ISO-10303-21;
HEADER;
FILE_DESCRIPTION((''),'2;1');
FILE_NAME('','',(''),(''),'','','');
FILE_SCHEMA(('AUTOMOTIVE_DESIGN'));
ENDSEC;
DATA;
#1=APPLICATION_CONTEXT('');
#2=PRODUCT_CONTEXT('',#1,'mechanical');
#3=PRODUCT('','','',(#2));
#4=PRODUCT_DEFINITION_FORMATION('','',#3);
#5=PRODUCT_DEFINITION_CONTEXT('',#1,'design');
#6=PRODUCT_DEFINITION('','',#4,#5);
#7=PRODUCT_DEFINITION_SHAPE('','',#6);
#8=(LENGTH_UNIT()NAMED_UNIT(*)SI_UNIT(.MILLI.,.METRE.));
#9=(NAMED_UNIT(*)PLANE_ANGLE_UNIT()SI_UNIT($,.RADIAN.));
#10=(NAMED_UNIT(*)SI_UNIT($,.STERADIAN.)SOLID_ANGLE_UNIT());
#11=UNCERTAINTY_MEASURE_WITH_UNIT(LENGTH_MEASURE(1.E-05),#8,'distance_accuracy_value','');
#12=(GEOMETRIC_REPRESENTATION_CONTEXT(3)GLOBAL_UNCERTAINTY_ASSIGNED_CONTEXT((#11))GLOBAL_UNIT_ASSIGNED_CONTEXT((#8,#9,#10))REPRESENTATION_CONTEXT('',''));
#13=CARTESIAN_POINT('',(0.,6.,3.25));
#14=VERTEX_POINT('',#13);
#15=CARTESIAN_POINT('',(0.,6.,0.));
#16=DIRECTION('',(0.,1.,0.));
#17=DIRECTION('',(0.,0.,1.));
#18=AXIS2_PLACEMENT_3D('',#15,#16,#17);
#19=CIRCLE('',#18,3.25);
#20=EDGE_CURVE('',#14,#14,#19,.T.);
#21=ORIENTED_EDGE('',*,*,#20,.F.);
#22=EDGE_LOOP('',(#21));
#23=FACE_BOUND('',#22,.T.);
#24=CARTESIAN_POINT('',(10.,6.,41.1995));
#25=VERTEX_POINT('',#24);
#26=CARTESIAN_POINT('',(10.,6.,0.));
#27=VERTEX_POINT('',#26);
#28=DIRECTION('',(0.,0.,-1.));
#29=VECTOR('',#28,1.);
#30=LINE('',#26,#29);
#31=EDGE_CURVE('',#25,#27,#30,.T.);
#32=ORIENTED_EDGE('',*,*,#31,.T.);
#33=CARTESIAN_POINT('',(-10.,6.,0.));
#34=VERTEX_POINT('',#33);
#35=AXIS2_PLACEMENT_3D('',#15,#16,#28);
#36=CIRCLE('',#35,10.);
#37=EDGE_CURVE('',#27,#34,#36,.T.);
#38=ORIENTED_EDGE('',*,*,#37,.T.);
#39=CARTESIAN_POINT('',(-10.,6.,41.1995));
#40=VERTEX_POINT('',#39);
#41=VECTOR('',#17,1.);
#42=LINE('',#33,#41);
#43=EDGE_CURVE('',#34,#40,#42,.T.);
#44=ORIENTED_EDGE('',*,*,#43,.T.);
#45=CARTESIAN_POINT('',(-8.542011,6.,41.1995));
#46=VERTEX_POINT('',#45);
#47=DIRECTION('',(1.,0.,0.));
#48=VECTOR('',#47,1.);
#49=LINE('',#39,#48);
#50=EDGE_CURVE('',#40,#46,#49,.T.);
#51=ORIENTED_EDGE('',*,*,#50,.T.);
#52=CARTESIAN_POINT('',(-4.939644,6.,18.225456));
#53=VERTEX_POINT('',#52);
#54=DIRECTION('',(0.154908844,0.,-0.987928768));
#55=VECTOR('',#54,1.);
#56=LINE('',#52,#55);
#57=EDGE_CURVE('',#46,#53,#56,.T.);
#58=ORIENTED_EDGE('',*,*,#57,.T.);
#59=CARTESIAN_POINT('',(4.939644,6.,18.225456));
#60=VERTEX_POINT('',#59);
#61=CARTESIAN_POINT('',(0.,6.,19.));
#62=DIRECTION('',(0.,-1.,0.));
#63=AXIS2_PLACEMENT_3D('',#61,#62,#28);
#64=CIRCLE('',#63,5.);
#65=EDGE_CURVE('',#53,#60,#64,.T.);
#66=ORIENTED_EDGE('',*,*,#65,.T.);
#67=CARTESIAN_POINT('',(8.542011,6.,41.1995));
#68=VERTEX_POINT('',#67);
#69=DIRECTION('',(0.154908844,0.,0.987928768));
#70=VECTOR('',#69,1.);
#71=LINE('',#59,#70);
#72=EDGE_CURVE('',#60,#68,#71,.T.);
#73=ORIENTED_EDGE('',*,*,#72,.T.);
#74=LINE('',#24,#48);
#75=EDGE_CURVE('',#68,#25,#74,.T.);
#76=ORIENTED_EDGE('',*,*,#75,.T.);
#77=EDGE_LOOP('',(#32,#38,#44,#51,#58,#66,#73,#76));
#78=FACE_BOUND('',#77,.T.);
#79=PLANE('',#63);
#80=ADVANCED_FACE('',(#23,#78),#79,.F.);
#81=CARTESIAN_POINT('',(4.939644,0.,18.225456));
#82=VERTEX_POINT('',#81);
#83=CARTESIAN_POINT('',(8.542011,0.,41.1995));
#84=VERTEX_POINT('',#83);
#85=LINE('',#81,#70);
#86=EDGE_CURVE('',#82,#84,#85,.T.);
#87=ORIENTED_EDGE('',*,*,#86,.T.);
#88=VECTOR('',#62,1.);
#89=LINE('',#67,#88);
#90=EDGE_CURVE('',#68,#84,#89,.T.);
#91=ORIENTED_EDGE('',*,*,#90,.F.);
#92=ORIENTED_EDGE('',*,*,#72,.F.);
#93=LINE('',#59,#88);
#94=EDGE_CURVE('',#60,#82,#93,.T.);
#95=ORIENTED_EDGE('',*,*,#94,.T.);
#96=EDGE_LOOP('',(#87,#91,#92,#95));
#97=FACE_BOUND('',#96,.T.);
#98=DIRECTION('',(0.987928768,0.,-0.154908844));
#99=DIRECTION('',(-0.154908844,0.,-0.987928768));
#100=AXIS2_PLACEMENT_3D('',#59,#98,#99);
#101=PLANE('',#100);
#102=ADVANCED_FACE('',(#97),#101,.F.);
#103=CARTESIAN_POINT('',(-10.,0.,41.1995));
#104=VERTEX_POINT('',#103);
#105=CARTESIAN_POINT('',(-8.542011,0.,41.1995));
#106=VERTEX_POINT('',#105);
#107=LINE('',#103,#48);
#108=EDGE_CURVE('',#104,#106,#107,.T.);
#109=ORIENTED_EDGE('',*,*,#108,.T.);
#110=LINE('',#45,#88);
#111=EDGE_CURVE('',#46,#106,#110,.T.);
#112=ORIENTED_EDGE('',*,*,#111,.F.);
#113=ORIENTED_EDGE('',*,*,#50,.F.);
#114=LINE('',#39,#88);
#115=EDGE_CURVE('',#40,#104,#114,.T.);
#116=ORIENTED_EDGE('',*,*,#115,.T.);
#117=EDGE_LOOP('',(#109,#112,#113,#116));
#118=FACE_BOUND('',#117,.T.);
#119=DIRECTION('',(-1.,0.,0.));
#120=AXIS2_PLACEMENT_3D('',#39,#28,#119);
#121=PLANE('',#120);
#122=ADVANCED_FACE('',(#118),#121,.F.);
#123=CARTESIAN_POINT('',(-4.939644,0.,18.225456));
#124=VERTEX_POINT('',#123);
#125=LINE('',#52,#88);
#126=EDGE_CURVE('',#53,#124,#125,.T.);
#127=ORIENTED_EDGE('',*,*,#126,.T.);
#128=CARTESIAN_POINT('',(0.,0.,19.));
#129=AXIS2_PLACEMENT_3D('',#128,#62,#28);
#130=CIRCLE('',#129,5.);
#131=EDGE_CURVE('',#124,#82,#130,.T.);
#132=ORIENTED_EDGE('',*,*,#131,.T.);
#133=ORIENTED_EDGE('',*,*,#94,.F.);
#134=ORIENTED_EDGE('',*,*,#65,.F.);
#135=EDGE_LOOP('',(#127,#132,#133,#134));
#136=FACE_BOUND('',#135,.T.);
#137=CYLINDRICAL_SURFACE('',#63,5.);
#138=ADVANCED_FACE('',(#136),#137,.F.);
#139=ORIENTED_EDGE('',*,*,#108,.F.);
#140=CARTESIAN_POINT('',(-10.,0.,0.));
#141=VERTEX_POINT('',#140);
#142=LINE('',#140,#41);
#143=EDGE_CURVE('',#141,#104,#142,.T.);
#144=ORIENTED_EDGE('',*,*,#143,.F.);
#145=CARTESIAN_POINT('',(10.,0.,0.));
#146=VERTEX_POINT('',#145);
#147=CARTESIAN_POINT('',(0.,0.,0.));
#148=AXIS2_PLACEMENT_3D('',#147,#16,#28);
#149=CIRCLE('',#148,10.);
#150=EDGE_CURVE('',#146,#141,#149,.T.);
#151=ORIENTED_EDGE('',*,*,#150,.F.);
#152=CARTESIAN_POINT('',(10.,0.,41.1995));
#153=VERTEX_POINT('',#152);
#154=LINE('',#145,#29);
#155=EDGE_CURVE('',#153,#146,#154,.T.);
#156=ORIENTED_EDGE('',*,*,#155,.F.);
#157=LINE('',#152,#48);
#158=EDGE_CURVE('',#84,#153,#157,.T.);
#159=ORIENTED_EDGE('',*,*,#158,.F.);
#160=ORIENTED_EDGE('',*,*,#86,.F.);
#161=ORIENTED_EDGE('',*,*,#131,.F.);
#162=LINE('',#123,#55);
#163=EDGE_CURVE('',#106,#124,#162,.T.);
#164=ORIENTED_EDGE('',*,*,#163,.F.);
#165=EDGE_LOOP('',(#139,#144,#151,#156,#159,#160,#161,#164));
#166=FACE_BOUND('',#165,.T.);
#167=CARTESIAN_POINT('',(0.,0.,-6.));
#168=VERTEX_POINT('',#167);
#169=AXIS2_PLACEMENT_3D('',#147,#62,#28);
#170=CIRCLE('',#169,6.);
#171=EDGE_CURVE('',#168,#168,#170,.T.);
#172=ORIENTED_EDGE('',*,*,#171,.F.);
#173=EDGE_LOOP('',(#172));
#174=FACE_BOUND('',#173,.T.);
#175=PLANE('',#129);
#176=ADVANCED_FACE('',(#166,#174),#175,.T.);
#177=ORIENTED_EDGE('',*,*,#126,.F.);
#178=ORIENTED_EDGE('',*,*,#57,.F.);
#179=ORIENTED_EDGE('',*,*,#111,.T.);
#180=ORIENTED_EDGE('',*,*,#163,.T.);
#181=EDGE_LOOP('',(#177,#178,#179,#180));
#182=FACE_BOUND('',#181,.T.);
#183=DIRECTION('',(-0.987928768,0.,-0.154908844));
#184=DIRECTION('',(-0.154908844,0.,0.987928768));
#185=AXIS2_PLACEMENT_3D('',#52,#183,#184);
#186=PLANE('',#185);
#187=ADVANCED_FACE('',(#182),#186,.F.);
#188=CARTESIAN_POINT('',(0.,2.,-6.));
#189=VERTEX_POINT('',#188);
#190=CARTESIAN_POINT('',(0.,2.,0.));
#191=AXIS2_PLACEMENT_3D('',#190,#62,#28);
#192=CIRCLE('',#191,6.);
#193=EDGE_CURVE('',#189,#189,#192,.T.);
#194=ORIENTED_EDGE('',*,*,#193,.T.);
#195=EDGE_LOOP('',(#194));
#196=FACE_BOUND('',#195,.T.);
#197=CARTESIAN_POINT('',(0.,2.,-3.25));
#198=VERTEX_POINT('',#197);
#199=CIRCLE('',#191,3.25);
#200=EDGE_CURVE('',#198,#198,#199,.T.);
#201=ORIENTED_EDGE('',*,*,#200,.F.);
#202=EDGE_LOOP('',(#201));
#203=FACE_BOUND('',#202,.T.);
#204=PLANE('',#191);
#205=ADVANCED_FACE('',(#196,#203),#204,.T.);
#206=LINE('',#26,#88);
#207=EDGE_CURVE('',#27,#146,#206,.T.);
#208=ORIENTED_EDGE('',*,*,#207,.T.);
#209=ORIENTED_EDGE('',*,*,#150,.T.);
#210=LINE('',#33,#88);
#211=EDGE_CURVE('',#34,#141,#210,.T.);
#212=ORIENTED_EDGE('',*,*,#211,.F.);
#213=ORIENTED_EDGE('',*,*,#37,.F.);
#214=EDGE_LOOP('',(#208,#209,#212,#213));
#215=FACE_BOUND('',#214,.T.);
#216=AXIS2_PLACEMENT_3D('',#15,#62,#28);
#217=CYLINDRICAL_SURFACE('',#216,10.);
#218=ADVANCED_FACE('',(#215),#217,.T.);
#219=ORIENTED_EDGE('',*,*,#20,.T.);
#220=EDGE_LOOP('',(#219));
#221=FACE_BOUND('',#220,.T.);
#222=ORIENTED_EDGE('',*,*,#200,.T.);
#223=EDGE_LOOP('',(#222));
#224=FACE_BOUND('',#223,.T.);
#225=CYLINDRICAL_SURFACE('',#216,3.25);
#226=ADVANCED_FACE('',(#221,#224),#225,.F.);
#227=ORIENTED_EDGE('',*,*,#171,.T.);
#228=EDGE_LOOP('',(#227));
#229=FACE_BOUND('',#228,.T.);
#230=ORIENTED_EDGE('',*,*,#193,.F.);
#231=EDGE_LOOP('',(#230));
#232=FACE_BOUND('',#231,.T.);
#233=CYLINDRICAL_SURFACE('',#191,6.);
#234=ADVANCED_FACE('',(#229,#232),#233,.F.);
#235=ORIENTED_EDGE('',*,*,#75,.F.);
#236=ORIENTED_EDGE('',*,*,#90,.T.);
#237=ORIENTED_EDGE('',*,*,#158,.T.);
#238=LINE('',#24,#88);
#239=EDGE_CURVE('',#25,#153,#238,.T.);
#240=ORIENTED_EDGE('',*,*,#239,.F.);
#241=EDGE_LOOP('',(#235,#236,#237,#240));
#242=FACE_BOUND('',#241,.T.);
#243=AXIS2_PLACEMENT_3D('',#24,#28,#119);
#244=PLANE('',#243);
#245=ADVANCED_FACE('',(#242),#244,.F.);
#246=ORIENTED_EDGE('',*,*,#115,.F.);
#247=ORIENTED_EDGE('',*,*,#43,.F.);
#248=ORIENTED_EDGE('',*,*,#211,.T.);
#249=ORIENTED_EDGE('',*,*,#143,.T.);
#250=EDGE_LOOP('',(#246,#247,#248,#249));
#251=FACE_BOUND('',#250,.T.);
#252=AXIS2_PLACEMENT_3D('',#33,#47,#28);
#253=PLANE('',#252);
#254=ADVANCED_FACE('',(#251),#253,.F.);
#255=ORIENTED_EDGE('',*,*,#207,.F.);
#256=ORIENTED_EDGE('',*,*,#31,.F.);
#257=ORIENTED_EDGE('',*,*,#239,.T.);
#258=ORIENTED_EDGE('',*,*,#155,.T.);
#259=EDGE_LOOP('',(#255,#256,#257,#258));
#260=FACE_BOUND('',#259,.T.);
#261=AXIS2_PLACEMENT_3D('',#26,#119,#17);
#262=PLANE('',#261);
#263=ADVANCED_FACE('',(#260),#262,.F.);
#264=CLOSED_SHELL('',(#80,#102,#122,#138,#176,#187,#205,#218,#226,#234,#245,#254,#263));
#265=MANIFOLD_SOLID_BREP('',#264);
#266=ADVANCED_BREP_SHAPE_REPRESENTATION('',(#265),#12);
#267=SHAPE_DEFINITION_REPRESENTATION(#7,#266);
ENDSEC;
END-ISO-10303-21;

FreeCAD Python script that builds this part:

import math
import FreeCAD as App
import Part
import Sketcher

V = App.Vector

doc = App.newDocument("Part")
params = doc.addObject("Spreadsheet::Sheet", "Params")
for row, (alias, value) in enumerate([
    ("sketch1_radius", "5 mm"),
    ("sketch1_radius2", "10 mm"),
    ("sketch1_diameter", "6.5 mm"),
    ("pad1_length", "6 mm"),
    ("sketch2_diameter", "12 mm"),
    ("pocket1_length", "2 mm"),
], start=1):
    params.set(f"A{row}", alias)
    params.set(f"B{row}", "=" + value)
    params.setAlias(f"B{row}", alias)

body = doc.addObject("PartDesign::Body", "Body")

sketch1 = doc.addObject("Sketcher::SketchObject", "Sketch")
body.addObject(sketch1)
sketch1.AttachmentSupport = (doc.XZ_Plane, [""])
sketch1.MapMode = "FlatFace"
sketch1.addGeometry(Part.LineSegment(V(-8.542011, 41.1995, 0), V(-4.939644, 18.225456, 0)), False)
sketch1.addGeometry(Part.ArcOfCircle(Part.Circle(V(0, 19, 0), V(0, 0, 1), 5), math.radians(-171.08849), math.radians(-8.91151)), False)
sketch1.addGeometry(Part.LineSegment(V(4.939644, 18.225456, 0), V(8.542011, 41.1995, 0)), False)
sketch1.addGeometry(Part.LineSegment(V(8.542011, 41.1995, 0), V(10, 41.1995, 0)), False)
sketch1.addGeometry(Part.LineSegment(V(10, 41.1995, 0), V(10, 0, 0)), False)
sketch1.addGeometry(Part.ArcOfCircle(Part.Circle(V(0, 0, 0), V(0, 0, 1), 10), math.radians(180), math.radians(360)), False)
sketch1.addGeometry(Part.LineSegment(V(-10, 0, 0), V(-10, 41.1995, 0)), False)
sketch1.addGeometry(Part.LineSegment(V(-10, 41.1995, 0), V(-8.542011, 41.1995, 0)), False)
sketch1.addGeometry(Part.Circle(V(0, 0, 0), V(0, 0, 1), 3.25), False)
sketch1.addConstraint(Sketcher.Constraint("Tangent", 0, 2, 1, 1))
sketch1.addConstraint(Sketcher.Constraint("Tangent", 1, 2, 2, 1))
sketch1.addConstraint(Sketcher.Constraint("Coincident", 2, 2, 3, 1))
sketch1.addConstraint(Sketcher.Constraint("Coincident", 3, 2, 4, 1))
sketch1.addConstraint(Sketcher.Constraint("Tangent", 4, 2, 5, 2))
sketch1.addConstraint(Sketcher.Constraint("Tangent", 5, 1, 6, 1))
sketch1.addConstraint(Sketcher.Constraint("Coincident", 6, 2, 7, 1))
sketch1.addConstraint(Sketcher.Constraint("Coincident", 7, 2, 0, 1))
sketch1.addConstraint(Sketcher.Constraint("Horizontal", 3))
sketch1.addConstraint(Sketcher.Constraint("Vertical", 4))
sketch1.addConstraint(Sketcher.Constraint("Vertical", 6))
sketch1.addConstraint(Sketcher.Constraint("Horizontal", 7))
sketch1.addConstraint(Sketcher.Constraint("Coincident", 5, 3, -1, 1))
sketch1.addConstraint(Sketcher.Constraint("Coincident", 8, 3, -1, 1))
sketch1.addConstraint(Sketcher.Constraint("Symmetric", 0, 2, 1, 2, -2))
sketch1.addConstraint(Sketcher.Constraint("Horizontal", 3, 2, 6, 2))
sketch1.addConstraint(Sketcher.Constraint("Radius", 1, 5.0))
sketch1.addConstraint(Sketcher.Constraint("Radius", 5, 10.0))
sketch1.addConstraint(Sketcher.Constraint("Diameter", 8, 6.5))
sketch1.addConstraint(Sketcher.Constraint("DistanceY", -1, 1, 1, 3, 19.0))
sketch1.addConstraint(Sketcher.Constraint("DistanceY", 4, 2, 4, 1, 41.1995))
sketch1.addConstraint(Sketcher.Constraint("DistanceX", 3, 1, 3, 2, 1.457989))
sketch1.setExpression("Constraints[16]", "Params.sketch1_radius")
sketch1.setExpression("Constraints[17]", "Params.sketch1_radius2")
sketch1.setExpression("Constraints[18]", "Params.sketch1_diameter")
pad1 = doc.addObject("PartDesign::Pad", "Pad")
body.addObject(pad1)
pad1.Profile = sketch1
pad1.setExpression("Length", "Params.pad1_length")
pad1.Reversed = True

sketch2 = doc.addObject("Sketcher::SketchObject", "Sketch001")
body.addObject(sketch2)
sketch2.AttachmentSupport = (doc.XZ_Plane, [""])
sketch2.MapMode = "FlatFace"
sketch2.addGeometry(Part.Circle(V(0, 0, 0), V(0, 0, 1), 6), False)
sketch2.addConstraint(Sketcher.Constraint("Coincident", 0, 3, -1, 1))
sketch2.addConstraint(Sketcher.Constraint("Diameter", 0, 12.0))
sketch2.setExpression("Constraints[1]", "Params.sketch2_diameter")
pocket1 = doc.addObject("PartDesign::Pocket", "Pocket")
body.addObject(pocket1)
pocket1.Profile = sketch2
pocket1.setExpression("Length", "Params.pocket1_length")

doc.recompute()
